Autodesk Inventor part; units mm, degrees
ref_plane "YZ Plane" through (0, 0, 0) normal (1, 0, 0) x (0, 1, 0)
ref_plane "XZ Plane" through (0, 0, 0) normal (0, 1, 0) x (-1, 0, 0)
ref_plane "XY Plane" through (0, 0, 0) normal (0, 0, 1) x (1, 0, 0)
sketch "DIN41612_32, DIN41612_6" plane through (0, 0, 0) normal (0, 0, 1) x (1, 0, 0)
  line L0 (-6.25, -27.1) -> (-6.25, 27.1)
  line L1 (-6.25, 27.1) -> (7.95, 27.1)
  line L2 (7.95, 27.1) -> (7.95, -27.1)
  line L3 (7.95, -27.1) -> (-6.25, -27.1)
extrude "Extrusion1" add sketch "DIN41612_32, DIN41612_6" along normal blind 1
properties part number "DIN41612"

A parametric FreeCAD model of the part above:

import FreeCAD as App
import Part
import Sketcher
from FreeCAD import Vector
Q = App.Units.Quantity


def add_polygon(sketch, points):
    """Adds a closed chain of lines whose ends are joined by coincident constraints."""
    first, n = sketch.GeometryCount, len(points)
    for a, b in zip(points, points[1:] + points[:1]):
        sketch.addGeometry(Part.LineSegment(App.Vector(*a, 0), App.Vector(*b, 0)), False)
    for i in range(n):
        sketch.addConstraint(Sketcher.Constraint("Coincident", first + i, 2, first + (i + 1) % n, 1))

doc = App.newDocument("Part")
body = doc.addObject("PartDesign::Body", "Body")

# Sketch on XY plane
sketch1 = body.newObject("Sketcher::SketchObject", "Sketch")
sketch1.AttachmentSupport = (doc.getObject("XY_Plane"), [""])
sketch1.MapMode = "FlatFace"
add_polygon(sketch1, [(-6.25, 27.1), (-6.25, -27.1), (7.95, -27.1), (7.95, 27.1)])  # lines 0-3
sketch1.addConstraint([
    Sketcher.Constraint("Vertical", 0),
    Sketcher.Constraint("Horizontal", 1),
    Sketcher.Constraint("Vertical", 2),
    Sketcher.Constraint("Horizontal", 3),
    Sketcher.Constraint("DistanceX", 1, 1, 1, 2, Q("14.2 mm")),
    Sketcher.Constraint("DistanceY", 0, 2, 0, 1, Q("54.2 mm")),
    Sketcher.Constraint("DistanceY", 0, 2, -1, 1, Q("27.1 mm")),
    Sketcher.Constraint("DistanceX", 0, 2, -1, 1, Q("6.25 mm")),
])
pad1 = body.newObject("PartDesign::Pad", "Pad")
pad1.Profile = sketch1
pad1.Length = 1

doc.recompute()
